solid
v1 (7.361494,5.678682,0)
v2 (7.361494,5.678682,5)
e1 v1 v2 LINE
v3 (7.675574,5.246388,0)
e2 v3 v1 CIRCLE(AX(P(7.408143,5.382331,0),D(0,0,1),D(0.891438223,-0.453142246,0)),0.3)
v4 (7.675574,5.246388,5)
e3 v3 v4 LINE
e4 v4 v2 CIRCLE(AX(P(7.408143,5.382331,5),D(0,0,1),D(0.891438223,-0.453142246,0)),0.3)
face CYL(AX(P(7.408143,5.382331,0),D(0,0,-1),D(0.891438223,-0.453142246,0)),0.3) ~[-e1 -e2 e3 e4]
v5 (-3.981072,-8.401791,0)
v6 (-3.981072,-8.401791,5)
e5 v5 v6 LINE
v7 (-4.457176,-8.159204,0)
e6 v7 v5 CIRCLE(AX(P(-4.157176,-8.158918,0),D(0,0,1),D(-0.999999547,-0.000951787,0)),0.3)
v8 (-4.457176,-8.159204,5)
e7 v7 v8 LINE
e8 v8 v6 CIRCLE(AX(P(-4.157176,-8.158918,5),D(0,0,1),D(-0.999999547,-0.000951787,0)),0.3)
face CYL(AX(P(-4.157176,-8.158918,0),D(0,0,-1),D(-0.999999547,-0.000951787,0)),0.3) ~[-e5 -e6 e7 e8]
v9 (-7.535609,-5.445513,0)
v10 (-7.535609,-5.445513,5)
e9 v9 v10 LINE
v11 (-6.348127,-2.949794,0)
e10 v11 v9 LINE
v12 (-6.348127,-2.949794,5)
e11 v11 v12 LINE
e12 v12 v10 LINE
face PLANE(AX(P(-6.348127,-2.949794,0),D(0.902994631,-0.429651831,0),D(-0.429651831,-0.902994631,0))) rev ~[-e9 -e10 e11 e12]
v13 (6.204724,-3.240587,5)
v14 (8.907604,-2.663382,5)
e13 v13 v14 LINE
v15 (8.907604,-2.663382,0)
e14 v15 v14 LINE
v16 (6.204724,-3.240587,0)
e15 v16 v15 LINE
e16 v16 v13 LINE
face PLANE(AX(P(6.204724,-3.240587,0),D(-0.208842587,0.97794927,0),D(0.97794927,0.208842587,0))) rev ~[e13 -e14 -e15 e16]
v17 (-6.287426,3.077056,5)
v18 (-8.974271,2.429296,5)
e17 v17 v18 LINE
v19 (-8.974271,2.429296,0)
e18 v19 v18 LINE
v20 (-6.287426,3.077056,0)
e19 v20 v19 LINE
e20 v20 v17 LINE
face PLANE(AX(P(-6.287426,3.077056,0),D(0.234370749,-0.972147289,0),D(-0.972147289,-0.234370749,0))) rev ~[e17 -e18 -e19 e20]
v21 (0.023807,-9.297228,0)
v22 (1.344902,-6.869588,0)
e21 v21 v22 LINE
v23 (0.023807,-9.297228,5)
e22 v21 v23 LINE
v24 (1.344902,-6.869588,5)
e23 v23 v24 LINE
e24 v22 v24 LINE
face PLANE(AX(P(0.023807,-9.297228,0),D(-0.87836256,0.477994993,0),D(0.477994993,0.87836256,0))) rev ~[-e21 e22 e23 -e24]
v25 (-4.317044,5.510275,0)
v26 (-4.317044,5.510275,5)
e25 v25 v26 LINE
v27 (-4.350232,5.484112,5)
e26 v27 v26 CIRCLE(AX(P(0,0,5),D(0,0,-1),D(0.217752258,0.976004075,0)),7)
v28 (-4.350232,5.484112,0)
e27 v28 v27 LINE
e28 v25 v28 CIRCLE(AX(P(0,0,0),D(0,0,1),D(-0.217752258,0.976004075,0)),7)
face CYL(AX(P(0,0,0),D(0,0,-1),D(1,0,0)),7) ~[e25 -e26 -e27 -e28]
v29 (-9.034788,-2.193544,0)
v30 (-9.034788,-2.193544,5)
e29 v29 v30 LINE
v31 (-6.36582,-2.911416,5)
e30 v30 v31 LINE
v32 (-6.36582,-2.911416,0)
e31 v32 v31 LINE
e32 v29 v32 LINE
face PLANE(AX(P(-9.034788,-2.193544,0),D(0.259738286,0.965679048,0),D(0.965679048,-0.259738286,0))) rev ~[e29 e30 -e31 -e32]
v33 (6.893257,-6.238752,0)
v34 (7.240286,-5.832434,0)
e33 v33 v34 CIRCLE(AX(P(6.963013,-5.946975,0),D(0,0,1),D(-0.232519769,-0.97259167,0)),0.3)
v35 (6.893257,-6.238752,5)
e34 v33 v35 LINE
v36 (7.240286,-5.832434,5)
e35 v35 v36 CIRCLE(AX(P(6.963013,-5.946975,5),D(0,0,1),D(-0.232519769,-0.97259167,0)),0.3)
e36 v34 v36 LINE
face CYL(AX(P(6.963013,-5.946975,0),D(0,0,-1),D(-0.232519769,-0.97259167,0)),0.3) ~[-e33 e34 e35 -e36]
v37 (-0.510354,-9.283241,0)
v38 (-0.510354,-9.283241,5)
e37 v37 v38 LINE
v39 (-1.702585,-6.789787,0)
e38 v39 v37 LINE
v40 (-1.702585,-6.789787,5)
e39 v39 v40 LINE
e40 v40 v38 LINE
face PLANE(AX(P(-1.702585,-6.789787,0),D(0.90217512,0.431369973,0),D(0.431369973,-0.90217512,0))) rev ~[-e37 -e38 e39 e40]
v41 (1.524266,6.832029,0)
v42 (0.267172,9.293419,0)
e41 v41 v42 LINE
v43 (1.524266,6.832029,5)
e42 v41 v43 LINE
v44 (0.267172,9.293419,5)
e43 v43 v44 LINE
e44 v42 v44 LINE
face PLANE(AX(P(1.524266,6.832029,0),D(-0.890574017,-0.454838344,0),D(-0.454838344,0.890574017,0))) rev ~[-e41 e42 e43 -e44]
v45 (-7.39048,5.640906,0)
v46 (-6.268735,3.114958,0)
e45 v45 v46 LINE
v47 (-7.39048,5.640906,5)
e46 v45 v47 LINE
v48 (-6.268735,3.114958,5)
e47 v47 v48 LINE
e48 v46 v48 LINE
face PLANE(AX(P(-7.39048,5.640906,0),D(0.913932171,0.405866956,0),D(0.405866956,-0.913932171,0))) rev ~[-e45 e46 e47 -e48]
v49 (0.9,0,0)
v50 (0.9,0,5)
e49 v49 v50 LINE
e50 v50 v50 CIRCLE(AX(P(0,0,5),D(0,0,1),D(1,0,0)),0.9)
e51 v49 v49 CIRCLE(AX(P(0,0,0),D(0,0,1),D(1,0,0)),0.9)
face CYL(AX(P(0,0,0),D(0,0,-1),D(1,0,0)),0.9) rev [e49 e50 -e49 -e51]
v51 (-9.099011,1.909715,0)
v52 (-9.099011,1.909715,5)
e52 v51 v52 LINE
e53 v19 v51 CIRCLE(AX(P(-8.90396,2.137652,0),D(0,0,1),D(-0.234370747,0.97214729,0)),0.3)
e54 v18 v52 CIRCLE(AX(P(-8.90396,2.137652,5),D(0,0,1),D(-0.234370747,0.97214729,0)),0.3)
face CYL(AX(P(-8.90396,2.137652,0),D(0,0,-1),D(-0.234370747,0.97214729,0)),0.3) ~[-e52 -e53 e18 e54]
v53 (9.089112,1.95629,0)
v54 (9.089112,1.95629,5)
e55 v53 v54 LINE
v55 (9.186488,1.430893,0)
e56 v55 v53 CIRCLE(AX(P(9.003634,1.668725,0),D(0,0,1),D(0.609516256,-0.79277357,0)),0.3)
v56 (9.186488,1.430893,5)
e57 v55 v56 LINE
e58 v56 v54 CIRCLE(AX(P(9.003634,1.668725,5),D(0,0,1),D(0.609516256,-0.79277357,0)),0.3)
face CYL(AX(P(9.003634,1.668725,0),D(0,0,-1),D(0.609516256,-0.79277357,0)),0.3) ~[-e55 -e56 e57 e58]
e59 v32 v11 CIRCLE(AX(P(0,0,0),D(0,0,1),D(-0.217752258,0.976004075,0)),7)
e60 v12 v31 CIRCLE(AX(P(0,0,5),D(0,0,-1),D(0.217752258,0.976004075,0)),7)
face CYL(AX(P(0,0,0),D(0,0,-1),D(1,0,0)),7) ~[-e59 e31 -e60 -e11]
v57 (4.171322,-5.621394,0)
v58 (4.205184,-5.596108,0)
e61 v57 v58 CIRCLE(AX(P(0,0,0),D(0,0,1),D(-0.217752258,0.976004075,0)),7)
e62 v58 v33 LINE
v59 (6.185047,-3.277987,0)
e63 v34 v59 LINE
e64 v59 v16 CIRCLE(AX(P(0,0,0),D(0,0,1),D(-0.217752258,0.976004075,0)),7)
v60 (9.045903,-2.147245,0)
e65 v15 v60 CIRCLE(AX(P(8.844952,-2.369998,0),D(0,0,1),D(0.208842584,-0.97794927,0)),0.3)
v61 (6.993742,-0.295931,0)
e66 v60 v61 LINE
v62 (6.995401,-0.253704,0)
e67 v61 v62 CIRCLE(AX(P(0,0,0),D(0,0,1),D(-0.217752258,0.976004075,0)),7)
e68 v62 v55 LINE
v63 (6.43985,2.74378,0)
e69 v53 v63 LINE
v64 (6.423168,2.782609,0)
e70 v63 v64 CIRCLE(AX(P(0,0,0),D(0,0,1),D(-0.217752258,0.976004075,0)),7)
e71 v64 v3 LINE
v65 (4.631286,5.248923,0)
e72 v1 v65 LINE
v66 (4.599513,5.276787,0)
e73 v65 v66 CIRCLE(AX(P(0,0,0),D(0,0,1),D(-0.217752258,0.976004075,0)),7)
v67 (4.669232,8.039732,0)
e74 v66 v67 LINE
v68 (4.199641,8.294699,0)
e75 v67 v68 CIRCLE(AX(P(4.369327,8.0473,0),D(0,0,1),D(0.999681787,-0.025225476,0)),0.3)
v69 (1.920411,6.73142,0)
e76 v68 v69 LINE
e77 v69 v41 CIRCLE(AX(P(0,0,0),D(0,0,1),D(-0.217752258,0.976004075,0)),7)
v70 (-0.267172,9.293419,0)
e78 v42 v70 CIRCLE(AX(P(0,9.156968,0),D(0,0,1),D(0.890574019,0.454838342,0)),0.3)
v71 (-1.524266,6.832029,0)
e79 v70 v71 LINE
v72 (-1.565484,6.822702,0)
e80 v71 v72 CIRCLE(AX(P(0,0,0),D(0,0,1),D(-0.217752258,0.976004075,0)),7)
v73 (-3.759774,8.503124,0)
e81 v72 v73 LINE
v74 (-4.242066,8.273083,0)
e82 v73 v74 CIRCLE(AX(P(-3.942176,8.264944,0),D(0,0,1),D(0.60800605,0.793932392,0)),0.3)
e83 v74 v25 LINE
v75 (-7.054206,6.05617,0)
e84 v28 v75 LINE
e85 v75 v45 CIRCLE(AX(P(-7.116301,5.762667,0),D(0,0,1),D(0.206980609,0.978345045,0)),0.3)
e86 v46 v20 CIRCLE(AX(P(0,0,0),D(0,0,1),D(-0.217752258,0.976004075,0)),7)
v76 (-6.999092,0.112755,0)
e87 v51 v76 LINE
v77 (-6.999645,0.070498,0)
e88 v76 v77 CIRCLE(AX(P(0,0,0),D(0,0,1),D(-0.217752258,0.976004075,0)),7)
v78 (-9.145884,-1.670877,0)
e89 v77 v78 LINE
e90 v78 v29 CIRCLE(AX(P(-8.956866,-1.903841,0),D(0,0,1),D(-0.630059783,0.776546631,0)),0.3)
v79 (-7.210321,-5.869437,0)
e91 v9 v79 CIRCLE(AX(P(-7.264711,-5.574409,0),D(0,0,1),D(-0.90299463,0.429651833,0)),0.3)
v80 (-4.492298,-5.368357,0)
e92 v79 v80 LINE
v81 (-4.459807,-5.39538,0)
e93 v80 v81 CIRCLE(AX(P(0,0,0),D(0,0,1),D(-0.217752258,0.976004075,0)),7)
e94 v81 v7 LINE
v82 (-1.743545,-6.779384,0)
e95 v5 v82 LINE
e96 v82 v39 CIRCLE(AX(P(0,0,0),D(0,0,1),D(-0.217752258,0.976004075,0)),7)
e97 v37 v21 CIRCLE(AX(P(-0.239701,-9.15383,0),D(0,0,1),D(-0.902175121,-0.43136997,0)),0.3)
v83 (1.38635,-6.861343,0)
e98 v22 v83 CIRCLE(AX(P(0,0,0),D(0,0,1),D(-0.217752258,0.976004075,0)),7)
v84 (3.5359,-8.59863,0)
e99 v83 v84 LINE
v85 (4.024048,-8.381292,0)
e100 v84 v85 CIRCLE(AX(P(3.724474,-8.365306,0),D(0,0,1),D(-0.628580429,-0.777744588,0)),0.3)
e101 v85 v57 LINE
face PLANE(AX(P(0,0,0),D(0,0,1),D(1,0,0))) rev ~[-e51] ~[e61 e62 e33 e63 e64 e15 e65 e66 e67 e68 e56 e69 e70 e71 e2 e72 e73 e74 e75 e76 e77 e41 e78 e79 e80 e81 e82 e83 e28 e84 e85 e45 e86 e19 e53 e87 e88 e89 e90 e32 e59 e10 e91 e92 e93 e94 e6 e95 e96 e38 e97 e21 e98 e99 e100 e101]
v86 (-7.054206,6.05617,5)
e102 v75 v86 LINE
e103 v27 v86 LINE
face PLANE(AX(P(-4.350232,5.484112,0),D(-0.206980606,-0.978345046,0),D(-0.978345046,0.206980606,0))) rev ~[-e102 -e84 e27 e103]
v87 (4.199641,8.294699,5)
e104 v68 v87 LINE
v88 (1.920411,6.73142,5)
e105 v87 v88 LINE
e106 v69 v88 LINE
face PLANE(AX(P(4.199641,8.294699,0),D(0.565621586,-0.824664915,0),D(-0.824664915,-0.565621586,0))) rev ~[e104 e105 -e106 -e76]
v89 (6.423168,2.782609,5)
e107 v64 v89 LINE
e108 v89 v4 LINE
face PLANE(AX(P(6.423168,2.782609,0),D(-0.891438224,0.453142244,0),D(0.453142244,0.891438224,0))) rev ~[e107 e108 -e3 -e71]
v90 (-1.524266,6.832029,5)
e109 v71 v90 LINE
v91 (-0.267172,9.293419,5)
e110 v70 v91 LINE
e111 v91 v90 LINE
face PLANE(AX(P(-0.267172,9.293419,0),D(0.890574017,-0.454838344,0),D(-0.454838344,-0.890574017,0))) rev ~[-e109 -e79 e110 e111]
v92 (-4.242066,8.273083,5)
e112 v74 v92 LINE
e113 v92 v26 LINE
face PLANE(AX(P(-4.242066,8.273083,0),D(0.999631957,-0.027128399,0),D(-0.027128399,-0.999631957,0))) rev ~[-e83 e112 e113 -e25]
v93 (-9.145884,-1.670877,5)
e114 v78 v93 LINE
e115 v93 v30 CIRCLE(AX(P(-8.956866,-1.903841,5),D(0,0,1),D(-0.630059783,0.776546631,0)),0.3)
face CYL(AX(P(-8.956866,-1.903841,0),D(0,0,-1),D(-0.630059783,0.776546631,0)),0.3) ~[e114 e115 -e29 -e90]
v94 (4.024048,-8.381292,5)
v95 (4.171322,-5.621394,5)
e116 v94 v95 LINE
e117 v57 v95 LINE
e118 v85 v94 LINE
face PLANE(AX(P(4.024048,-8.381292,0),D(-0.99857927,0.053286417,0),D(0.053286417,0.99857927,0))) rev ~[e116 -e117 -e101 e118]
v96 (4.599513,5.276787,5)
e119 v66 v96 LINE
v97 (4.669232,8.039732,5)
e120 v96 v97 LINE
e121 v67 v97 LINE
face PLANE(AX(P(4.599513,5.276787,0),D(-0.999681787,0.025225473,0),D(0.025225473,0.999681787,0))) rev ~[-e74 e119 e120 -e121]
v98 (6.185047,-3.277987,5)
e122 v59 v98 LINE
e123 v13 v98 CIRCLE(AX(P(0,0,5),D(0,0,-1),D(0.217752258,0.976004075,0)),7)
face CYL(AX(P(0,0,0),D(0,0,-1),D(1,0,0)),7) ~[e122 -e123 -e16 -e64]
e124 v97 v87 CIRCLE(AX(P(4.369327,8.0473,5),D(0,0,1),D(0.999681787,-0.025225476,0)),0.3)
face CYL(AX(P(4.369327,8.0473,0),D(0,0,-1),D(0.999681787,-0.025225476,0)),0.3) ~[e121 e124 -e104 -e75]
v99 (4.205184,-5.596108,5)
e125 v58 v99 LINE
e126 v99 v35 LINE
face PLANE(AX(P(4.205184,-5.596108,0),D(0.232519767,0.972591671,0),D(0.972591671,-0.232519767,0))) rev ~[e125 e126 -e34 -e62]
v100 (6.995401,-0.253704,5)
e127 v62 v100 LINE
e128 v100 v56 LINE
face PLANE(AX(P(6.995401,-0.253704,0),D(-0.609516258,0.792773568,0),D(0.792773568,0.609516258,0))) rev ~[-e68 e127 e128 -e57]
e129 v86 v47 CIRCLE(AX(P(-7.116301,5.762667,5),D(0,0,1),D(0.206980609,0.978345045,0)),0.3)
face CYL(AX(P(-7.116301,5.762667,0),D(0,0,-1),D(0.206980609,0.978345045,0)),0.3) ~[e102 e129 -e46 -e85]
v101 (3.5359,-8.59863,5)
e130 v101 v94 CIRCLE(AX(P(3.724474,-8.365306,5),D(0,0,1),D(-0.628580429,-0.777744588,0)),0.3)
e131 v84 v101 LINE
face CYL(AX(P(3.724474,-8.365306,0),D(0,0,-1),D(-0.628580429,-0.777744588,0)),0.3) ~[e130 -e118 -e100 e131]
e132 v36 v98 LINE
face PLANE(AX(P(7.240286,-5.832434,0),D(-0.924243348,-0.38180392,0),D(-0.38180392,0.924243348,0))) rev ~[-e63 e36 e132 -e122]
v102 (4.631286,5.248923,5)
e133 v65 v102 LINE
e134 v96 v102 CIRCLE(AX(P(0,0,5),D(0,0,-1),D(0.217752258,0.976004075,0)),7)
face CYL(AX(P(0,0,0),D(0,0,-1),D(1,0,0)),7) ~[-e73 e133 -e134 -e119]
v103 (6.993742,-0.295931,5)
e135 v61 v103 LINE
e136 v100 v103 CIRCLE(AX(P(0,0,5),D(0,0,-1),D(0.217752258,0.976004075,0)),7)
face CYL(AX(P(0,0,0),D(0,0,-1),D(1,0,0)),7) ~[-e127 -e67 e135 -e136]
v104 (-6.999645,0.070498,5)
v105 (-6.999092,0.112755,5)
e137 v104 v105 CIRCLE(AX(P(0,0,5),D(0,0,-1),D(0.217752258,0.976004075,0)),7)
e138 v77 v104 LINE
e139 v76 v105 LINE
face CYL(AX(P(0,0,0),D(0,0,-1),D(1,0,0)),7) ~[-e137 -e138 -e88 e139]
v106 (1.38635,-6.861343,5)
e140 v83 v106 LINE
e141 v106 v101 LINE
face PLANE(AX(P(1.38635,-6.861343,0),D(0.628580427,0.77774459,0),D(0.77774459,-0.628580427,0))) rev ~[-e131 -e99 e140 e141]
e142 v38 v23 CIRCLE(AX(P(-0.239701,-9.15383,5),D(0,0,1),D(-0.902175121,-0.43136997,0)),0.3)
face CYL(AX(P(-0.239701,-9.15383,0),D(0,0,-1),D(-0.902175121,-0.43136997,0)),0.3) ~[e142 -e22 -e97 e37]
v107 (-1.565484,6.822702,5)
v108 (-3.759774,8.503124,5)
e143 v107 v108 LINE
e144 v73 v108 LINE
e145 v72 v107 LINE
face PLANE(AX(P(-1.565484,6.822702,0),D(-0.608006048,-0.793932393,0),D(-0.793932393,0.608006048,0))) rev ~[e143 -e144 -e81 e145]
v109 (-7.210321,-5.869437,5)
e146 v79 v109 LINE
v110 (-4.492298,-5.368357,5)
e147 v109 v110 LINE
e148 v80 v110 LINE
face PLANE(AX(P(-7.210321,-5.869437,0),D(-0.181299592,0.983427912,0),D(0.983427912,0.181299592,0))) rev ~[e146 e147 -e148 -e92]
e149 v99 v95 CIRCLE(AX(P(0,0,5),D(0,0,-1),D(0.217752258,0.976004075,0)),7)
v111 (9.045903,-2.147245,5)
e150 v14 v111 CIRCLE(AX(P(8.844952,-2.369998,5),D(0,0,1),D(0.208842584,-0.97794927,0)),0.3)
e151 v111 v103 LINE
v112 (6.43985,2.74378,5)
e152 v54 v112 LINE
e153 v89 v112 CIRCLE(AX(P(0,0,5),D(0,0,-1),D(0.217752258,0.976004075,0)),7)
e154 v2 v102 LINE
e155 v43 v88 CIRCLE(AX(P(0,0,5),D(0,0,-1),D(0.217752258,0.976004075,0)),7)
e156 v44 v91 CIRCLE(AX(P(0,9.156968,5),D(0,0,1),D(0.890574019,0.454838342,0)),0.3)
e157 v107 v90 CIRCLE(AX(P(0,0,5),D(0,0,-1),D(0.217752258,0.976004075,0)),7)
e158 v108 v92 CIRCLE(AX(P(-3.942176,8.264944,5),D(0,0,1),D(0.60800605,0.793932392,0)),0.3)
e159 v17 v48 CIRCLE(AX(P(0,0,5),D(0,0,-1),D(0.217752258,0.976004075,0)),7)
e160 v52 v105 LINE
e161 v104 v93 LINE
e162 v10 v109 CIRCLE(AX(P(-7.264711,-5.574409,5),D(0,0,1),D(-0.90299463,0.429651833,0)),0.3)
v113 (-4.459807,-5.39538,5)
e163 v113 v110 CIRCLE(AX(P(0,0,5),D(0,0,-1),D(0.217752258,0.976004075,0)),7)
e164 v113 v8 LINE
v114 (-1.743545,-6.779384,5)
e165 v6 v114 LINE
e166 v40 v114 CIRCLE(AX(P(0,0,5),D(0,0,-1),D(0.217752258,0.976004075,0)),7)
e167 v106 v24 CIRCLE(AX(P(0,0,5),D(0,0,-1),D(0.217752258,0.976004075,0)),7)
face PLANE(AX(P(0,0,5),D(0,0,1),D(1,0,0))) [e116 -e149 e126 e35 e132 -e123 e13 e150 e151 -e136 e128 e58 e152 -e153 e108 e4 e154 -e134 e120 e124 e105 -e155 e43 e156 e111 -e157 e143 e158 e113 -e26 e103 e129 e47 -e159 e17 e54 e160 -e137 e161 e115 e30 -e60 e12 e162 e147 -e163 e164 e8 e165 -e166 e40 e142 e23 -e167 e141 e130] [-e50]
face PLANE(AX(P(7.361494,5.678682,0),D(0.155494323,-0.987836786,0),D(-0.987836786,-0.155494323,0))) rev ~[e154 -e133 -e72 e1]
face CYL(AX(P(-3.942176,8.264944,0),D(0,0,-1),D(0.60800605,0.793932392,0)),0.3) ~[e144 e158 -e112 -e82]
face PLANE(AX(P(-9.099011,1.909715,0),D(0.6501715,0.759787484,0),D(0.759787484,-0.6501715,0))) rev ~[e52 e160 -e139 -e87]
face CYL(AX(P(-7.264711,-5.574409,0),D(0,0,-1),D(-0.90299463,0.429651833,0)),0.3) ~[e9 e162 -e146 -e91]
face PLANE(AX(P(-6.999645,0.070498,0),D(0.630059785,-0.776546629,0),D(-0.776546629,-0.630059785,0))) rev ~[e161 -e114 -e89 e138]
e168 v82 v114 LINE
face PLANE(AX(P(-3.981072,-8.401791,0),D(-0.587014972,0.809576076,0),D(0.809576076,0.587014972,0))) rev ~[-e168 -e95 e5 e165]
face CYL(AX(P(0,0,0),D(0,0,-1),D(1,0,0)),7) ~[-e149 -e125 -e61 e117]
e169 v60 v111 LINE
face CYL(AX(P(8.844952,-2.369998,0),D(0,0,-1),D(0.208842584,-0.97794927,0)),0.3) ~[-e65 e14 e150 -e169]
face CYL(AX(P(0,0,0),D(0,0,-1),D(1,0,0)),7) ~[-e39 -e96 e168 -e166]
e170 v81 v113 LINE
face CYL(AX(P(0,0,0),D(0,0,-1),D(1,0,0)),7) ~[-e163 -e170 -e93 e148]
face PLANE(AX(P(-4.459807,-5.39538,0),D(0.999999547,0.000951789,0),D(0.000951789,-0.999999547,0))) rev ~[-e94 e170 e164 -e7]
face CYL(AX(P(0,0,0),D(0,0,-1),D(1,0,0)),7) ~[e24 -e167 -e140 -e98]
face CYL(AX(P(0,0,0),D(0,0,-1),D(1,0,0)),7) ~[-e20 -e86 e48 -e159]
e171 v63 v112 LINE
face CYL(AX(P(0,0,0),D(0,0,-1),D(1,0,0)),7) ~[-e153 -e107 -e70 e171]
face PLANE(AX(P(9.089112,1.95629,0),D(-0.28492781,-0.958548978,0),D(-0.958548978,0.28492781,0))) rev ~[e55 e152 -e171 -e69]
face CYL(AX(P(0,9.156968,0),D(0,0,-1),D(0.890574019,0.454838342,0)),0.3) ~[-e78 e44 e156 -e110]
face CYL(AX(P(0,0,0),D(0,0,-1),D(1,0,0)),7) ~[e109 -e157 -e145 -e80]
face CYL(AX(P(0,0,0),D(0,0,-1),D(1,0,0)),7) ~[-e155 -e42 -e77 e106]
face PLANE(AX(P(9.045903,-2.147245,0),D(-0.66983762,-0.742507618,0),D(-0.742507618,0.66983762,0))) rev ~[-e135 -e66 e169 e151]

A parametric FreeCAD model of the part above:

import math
import FreeCAD as App
import Part
import Sketcher

V = App.Vector

doc = App.newDocument("Part")
body = doc.addObject("PartDesign::Body", "Body")

sketch1 = body.newObject("Sketcher::SketchObject", "Sketch")
sketch1.AttachmentSupport = (doc.getObject("XY_Plane"), [""])
sketch1.MapMode = "FlatFace"
sketch1.addGeometry(Part.Circle(V(0, 0, 0), V(0, 0, 1), 7), False)
sketch1.addGeometry(Part.Circle(V(0, 0, 0), V(0, 0, 1), 0.9), False)
sketch1.addConstraint(Sketcher.Constraint("Coincident", 0, 3, -1, 1))
sketch1.addConstraint(Sketcher.Constraint("Coincident", 1, 3, -1, 1))
sketch1.addConstraint(Sketcher.Constraint("Diameter", 0, 14.0))
sketch1.addConstraint(Sketcher.Constraint("Diameter", 1, 1.8))
pad1 = body.newObject("PartDesign::Pad", "Pad")
pad1.Profile = sketch1
pad1.Length = 5

sketch2 = body.newObject("Sketcher::SketchObject", "Sketch001")
sketch2.AttachmentSupport = (doc.getObject("XY_Plane"), [""])
sketch2.MapMode = "FlatFace"
sketch2.addGeometry(Part.ArcOfCircle(Part.Circle(V(0, 9.156968, 0), V(0, 0, 1), 0.3), math.radians(27.054533), math.radians(152.945467)), False)
sketch2.addGeometry(Part.LineSegment(V(-0.267172, 9.293419, 0), V(-1.524266, 6.832029, 0)), False)
sketch2.addGeometry(Part.ArcOfCircle(Part.Circle(V(0, 0, 0), V(0, 0, 1), 7), math.radians(77.422953), math.radians(102.577047)), False)
sketch2.addGeometry(Part.LineSegment(V(1.524266, 6.832029, 0), V(0.267172, 9.293419, 0)), False)
sketch2.addConstraint(Sketcher.Constraint("Tangent", 0, 2, 1, 1))
sketch2.addConstraint(Sketcher.Constraint("Coincident", 1, 2, 2, 2))
sketch2.addConstraint(Sketcher.Constraint("Coincident", 2, 1, 3, 1))
sketch2.addConstraint(Sketcher.Constraint("Tangent", 3, 2, 0, 1))
sketch2.addConstraint(Sketcher.Constraint("Coincident", 2, 3, -1, 1))
sketch2.addConstraint(Sketcher.Constraint("Symmetric", 0, 2, 3, 2, -2))
sketch2.addConstraint(Sketcher.Constraint("Radius", 2, 7.0))
sketch2.addConstraint(Sketcher.Constraint("Radius", 0, 0.3))
sketch2.addConstraint(Sketcher.Constraint("DistanceY", -1, 1, 0, 2, 9.293419))
sketch2.addConstraint(Sketcher.Constraint("DistanceY", -1, 1, 1, 2, 6.832029))
pad2 = body.newObject("PartDesign::Pad", "Pad001")
pad2.Profile = sketch2
pad2.Length = 5
doc.recompute()

polarpattern = body.newObject("PartDesign::PolarPattern", "PolarPattern")
polarpattern.Originals = [pad2]
polarpattern.Axis = (doc.getObject("Z_Axis"), [""])
polarpattern.Angle = 331.5
polarpattern.Occurrences = 14
body.Tip = polarpattern

doc.recompute()
